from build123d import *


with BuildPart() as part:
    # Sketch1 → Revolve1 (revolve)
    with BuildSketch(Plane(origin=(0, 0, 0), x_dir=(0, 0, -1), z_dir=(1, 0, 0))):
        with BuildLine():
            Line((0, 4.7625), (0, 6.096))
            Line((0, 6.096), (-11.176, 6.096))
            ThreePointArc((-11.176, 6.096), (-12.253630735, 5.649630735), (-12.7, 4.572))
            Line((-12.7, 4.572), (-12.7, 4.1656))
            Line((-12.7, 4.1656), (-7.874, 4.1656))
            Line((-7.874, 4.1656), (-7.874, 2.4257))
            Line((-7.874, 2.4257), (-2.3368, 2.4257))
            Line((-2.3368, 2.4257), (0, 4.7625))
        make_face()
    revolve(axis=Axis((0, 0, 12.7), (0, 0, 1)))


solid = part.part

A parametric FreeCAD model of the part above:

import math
import FreeCAD as App
import Part
import Sketcher
from FreeCAD import Vector
Q = App.Units.Quantity

doc = App.newDocument("Part")
params = doc.addObject("Spreadsheet::Sheet", "Params")
for row, (alias, value) in enumerate([
    ("sketch1_radius", "0.06 in"),
    ("sketch1_height", "0.44 in"),
    ("sketch1_height2", "0.19 in"),
    ("sketch1_width", "0.016 in"),
    ("sketch1_height3", "0.218 in"),
    ("revolution_angle", "360 deg"),
], start=1):
    params.set(f"A{row}", alias)
    params.set(f"B{row}", "=" + value)
    params.setAlias(f"B{row}", alias)

body = doc.addObject("PartDesign::Body", "Body")

# Sketch on YZ plane
sketch1 = doc.addObject("Sketcher::SketchObject", "Sketch")
body.addObject(sketch1)
sketch1.AttachmentSupport = (doc.YZ_Plane, [""])
sketch1.MapMode = "FlatFace"
sketch1.addGeometry([
    Part.LineSegment(Vector(4.76, 0, 0), Vector(6.1, 0, 0)),  # 0
    Part.LineSegment(Vector(6.1, 0, 0), Vector(6.1, 11.18, 0)),  # 1
    Part.ArcOfCircle(Part.Circle(Vector(4.57, 11.18, 0), Vector(0, 0, 1), 1.52), math.radians(0), math.radians(90)),  # 2
    Part.LineSegment(Vector(4.57, 12.7, 0), Vector(4.17, 12.7, 0)),  # 3
    Part.LineSegment(Vector(4.17, 12.7, 0), Vector(4.17, 7.87, 0)),  # 4
    Part.LineSegment(Vector(4.17, 7.87, 0), Vector(2.43, 7.87, 0)),  # 5
    Part.LineSegment(Vector(2.43, 7.87, 0), Vector(2.43, 2.34, 0)),  # 6
    Part.LineSegment(Vector(2.43, 2.34, 0), Vector(4.76, 0, 0)),  # 7
], False)
sketch1.addConstraint([
    Sketcher.Constraint("Coincident", 0, 2, 1, 1),
    Sketcher.Constraint("Tangent", 1, 2, 2, 1),
    Sketcher.Constraint("Tangent", 2, 2, 3, 1),
    Sketcher.Constraint("Coincident", 3, 2, 4, 1),
    Sketcher.Constraint("Coincident", 4, 2, 5, 1),
    Sketcher.Constraint("Coincident", 5, 2, 6, 1),
    Sketcher.Constraint("Coincident", 6, 2, 7, 1),
    Sketcher.Constraint("Coincident", 7, 2, 0, 1),
    Sketcher.Constraint("Horizontal", 0),
    Sketcher.Constraint("Vertical", 1),
    Sketcher.Constraint("Horizontal", 3),
    Sketcher.Constraint("Vertical", 4),
    Sketcher.Constraint("Horizontal", 5),
    Sketcher.Constraint("Vertical", 6),
    Sketcher.Constraint("PointOnObject", 0, 2, -1),
    Sketcher.Constraint("Radius", 2, Q("0.06 in")),
    Sketcher.Constraint("Angle", 7, Q("-45 deg")),
    Sketcher.Constraint("DistanceY", 1, 1, 1, 2, Q("0.44 in")),
    Sketcher.Constraint("DistanceY", 4, 2, 4, 1, Q("0.19 in")),
    Sketcher.Constraint("DistanceX", 3, 2, 3, 1, Q("0.016 in")),
    Sketcher.Constraint("DistanceY", 6, 2, 6, 1, Q("0.218 in")),
    Sketcher.Constraint("DistanceX", -1, 1, 2, 3, Q("0.18 in")),
    Sketcher.Constraint("DistanceX", 0, 1, 0, 2, Q("0.0525 in")),
])
sketch1.setExpression("Constraints[15]", "Params.sketch1_radius")
sketch1.setExpression("Constraints[17]", "Params.sketch1_height")
sketch1.setExpression("Constraints[18]", "Params.sketch1_height2")
sketch1.setExpression("Constraints[19]", "Params.sketch1_width")
sketch1.setExpression("Constraints[20]", "Params.sketch1_height3")
revolution = doc.addObject("PartDesign::Revolution", "Revolution")
body.addObject(revolution)
revolution.Profile = sketch1
revolution.ReferenceAxis = (sketch1, ["V_Axis"])
revolution.setExpression("Angle", "Params.revolution_angle")

doc.recompute()
